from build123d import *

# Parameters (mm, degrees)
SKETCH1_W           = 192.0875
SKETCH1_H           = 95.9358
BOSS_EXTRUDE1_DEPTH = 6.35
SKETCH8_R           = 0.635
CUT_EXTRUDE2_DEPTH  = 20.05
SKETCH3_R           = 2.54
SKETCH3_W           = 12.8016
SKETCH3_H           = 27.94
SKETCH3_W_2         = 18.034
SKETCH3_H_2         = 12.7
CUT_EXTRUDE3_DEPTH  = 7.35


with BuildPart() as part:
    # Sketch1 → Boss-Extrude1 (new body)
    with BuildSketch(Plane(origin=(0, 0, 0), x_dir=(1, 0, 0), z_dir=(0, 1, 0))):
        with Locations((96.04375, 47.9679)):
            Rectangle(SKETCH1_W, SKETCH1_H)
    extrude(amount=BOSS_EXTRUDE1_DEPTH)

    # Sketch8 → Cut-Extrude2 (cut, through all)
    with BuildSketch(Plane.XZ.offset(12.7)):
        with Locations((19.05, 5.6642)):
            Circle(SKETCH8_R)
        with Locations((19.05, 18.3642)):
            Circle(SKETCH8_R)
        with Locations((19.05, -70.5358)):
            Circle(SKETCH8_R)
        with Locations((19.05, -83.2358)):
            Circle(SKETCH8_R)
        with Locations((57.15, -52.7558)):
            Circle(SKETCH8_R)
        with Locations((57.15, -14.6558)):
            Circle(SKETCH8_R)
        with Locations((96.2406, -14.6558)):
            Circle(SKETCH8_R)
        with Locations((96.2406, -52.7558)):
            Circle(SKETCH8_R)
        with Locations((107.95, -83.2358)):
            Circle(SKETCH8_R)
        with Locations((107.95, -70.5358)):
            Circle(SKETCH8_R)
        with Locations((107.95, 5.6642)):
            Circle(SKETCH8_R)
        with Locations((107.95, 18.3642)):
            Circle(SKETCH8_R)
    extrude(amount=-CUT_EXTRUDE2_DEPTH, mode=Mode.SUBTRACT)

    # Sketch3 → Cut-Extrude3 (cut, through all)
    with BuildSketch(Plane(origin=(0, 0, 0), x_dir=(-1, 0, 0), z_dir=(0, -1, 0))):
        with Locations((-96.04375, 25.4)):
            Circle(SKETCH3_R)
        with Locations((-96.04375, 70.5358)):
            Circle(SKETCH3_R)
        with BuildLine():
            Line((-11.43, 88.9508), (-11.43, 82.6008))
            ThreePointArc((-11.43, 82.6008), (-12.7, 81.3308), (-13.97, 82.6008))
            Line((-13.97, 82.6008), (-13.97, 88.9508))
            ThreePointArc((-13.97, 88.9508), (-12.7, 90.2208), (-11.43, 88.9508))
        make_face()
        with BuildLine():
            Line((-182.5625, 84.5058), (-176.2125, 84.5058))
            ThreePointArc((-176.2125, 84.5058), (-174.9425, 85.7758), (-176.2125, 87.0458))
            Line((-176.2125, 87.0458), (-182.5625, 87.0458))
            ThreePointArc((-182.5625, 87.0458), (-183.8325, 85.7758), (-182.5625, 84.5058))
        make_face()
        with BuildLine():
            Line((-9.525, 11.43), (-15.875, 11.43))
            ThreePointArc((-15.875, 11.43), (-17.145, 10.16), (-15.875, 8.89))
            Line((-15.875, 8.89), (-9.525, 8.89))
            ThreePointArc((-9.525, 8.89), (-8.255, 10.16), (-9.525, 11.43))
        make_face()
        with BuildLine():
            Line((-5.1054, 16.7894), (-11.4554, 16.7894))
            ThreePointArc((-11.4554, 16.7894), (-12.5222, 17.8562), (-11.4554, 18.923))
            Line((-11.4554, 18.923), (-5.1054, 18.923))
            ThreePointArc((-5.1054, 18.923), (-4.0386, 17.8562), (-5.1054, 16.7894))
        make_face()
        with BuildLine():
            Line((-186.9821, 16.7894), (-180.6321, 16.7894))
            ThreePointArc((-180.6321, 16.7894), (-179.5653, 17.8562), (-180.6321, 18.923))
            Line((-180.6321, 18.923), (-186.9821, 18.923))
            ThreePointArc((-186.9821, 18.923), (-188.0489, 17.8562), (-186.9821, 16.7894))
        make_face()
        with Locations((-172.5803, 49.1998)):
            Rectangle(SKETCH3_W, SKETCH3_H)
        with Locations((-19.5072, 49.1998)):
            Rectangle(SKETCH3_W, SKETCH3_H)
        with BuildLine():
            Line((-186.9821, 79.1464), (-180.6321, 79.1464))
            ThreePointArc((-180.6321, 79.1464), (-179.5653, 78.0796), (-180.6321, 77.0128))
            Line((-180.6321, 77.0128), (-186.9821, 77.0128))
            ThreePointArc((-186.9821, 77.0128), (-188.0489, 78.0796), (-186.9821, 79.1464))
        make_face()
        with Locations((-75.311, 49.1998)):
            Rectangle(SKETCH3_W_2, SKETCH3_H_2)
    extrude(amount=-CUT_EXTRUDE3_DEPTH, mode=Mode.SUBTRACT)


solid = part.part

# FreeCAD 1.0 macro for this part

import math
import FreeCAD as App
import Part
import Sketcher
from FreeCAD import Vector
Q = App.Units.Quantity

doc = App.newDocument("Part")
params = doc.addObject("Spreadsheet::Sheet", "Params")
for row, (alias, value) in enumerate([
    ("sketch1_width", "7.5625 in"),
    ("sketch1_height", "3.777 in"),
    ("pad1_length", "0.25 in"),
    ("sketch2_diameter", "0.05 in"),
    ("sketch3_diameter", "0.2 in"),
    ("sketch3_radius", "0.05 in"),
    ("sketch3_height", "1.1 in"),
    ("sketch3_height2", "0.5 in"),
    ("sketch3_radius2", "0.042 in"),
], start=1):
    params.set(f"A{row}", alias)
    params.set(f"B{row}", "=" + value)
    params.setAlias(f"B{row}", alias)

body = doc.addObject("PartDesign::Body", "Body")

# Sketch on XZ plane
sketch1 = doc.addObject("Sketcher::SketchObject", "Sketch")
body.addObject(sketch1)
sketch1.AttachmentSupport = (doc.XZ_Plane, [""])
sketch1.MapMode = "FlatFace"
sketch1.addGeometry([
    Part.LineSegment(Vector(0, -96, 0), Vector(0, 0, 0)),
    Part.LineSegment(Vector(0, 0, 0), Vector(192, 0, 0)),
    Part.LineSegment(Vector(192, 0, 0), Vector(192, -96, 0)),
    Part.LineSegment(Vector(192, -96, 0), Vector(0, -96, 0)),
], False)
sketch1.addConstraint([
    Sketcher.Constraint("Coincident", 0, 2, 1, 1),
    Sketcher.Constraint("Coincident", 1, 2, 2, 1),
    Sketcher.Constraint("Coincident", 2, 2, 3, 1),
    Sketcher.Constraint("Coincident", 3, 2, 0, 1),
    Sketcher.Constraint("Vertical", 0),
    Sketcher.Constraint("Horizontal", 1),
    Sketcher.Constraint("Vertical", 2),
    Sketcher.Constraint("Horizontal", 3),
    Sketcher.Constraint("Coincident", 0, 2, -1, 1),
    Sketcher.Constraint("DistanceX", 1, 1, 1, 2, Q("7.5625 in")),
    Sketcher.Constraint("DistanceY", 0, 1, 0, 2, Q("3.777 in")),
])
sketch1.setExpression("Constraints[9]", "Params.sketch1_width")
sketch1.setExpression("Constraints[10]", "Params.sketch1_height")
pad1 = doc.addObject("PartDesign::Pad", "Pad")
body.addObject(pad1)
pad1.Profile = sketch1
pad1.setExpression("Length", "Params.pad1_length")
pad1.Reversed = True

# Sketch on XZ plane
sketch2 = doc.addObject("Sketcher::SketchObject", "Sketch001")
body.addObject(sketch2)
sketch2.AttachmentSupport = (doc.XZ_Plane, [""])
sketch2.MapMode = "FlatFace"
sketch2.AttachmentOffset = App.Placement(Vector(0, 0, 0.5 * 25.4), App.Rotation())
sketch2.addGeometry([
    Part.Circle(Vector(19.1, 5.7, 0), Vector(0, 0, 1), 0.6),  # 0
    Part.Circle(Vector(19.1, 18.4, 0), Vector(0, 0, 1), 0.6),  # 1
    Part.Circle(Vector(19.1, -70.5, 0), Vector(0, 0, 1), 0.6),  # 2
    Part.Circle(Vector(19.1, -83.2, 0), Vector(0, 0, 1), 0.6),  # 3
    Part.Circle(Vector(57.1, -52.8, 0), Vector(0, 0, 1), 0.6),  # 4
    Part.Circle(Vector(57.1, -14.7, 0), Vector(0, 0, 1), 0.6),  # 5
    Part.Circle(Vector(96.2, -14.7, 0), Vector(0, 0, 1), 0.6),  # 6
    Part.Circle(Vector(96.2, -52.8, 0), Vector(0, 0, 1), 0.6),  # 7
    Part.Circle(Vector(108, -83.2, 0), Vector(0, 0, 1), 0.6),  # 8
    Part.Circle(Vector(108, -70.5, 0), Vector(0, 0, 1), 0.6),  # 9
    Part.Circle(Vector(108, 5.7, 0), Vector(0, 0, 1), 0.6),  # 10
    Part.Circle(Vector(108, 18.4, 0), Vector(0, 0, 1), 0.6),  # 11
], False)
sketch2.addConstraint([
    Sketcher.Constraint("Equal", 0, 1),
    Sketcher.Constraint("Equal", 1, 2),
    Sketcher.Constraint("Equal", 2, 3),
    Sketcher.Constraint("Equal", 3, 4),
    Sketcher.Constraint("Equal", 4, 5),
    Sketcher.Constraint("Equal", 5, 6),
    Sketcher.Constraint("Equal", 6, 7),
    Sketcher.Constraint("Equal", 7, 8),
    Sketcher.Constraint("Equal", 8, 9),
    Sketcher.Constraint("Equal", 9, 10),
    Sketcher.Constraint("Equal", 10, 11),
    Sketcher.Constraint("Horizontal", 5, 3, 6, 3),
    Sketcher.Constraint("Horizontal", 4, 3, 7, 3),
    Sketcher.Constraint("Horizontal", 3, 3, 8, 3),
    Sketcher.Constraint("Horizontal", 2, 3, 9, 3),
    Sketcher.Constraint("Horizontal", 0, 3, 10, 3),
    Sketcher.Constraint("Horizontal", 1, 3, 11, 3),
    Sketcher.Constraint("Vertical", 0, 3, 1, 3),
    Sketcher.Constraint("Vertical", 1, 3, 2, 3),
    Sketcher.Constraint("Vertical", 2, 3, 3, 3),
    Sketcher.Constraint("Vertical", 4, 3, 5, 3),
    Sketcher.Constraint("Vertical", 6, 3, 7, 3),
    Sketcher.Constraint("Vertical", 8, 3, 9, 3),
    Sketcher.Constraint("Vertical", 9, 3, 10, 3),
    Sketcher.Constraint("Vertical", 10, 3, 11, 3),
    Sketcher.Constraint("Diameter", 0, Q("0.05 in")),
    Sketcher.Constraint("DistanceY", 2, 3, 0, 3, Q("3 in")),
    Sketcher.Constraint("DistanceY", 3, 3, 1, 3, Q("4 in")),
    Sketcher.Constraint("DistanceX", 4, 3, 8, 3, Q("2 in")),
    Sketcher.Constraint("DistanceY", 0, 3, 1, 3, Q("0.5 in")),
    Sketcher.Constraint("DistanceX", 2, 3, 4, 3, Q("1.5 in")),
    Sketcher.Constraint("DistanceY", 2, 3, 4, 3, Q("0.7 in")),
    Sketcher.Constraint("DistanceY", 4, 3, 5, 3, Q("1.5 in")),
    Sketcher.Constraint("DistanceX", -1, 1, 0, 3, Q("0.75 in")),
    Sketcher.Constraint("DistanceY", -1, 1, 0, 3, Q("0.223 in")),
    Sketcher.Constraint("DistanceX", -1, 1, 6, 3, Q("3.789 in")),
])
sketch2.setExpression("Constraints[25]", "Params.sketch2_diameter")
pocket1 = doc.addObject("PartDesign::Pocket", "Pocket")
body.addObject(pocket1)
pocket1.Profile = sketch2
pocket1.Type = "ThroughAll"

# Sketch on XZ plane
sketch3 = doc.addObject("Sketcher::SketchObject", "Sketch002")
body.addObject(sketch3)
sketch3.AttachmentSupport = (doc.XZ_Plane, [""])
sketch3.MapMode = "FlatFace"
sketch3.addGeometry([
    Part.Circle(Vector(96, -25.4, 0), Vector(0, 0, 1), 2.5),  # 0
    Part.Circle(Vector(96, -70.5, 0), Vector(0, 0, 1), 2.5),  # 1
    Part.LineSegment(Vector(11.4, -82.6, 0), Vector(11.4, -89, 0)),  # 2
    Part.ArcOfCircle(Part.Circle(Vector(12.7, -89, 0), Vector(0, 0, 1), 1.3), math.radians(180), math.radians(360)),  # 3
    Part.LineSegment(Vector(14, -89, 0), Vector(14, -82.6, 0)),  # 4
    Part.ArcOfCircle(Part.Circle(Vector(12.7, -82.6, 0), Vector(0, 0, 1), 1.3), math.radians(0), math.radians(180)),  # 5
    Part.LineSegment(Vector(182.6, -84.5, 0), Vector(176.2, -84.5, 0)),  # 6
    Part.ArcOfCircle(Part.Circle(Vector(176.2, -85.8, 0), Vector(0, 0, 1), 1.3), math.radians(90), math.radians(270)),  # 7
    Part.LineSegment(Vector(176.2, -87, 0), Vector(182.6, -87, 0)),  # 8
    Part.ArcOfCircle(Part.Circle(Vector(182.6, -85.8, 0), Vector(0, 0, 1), 1.3), math.radians(-90), math.radians(90)),  # 9
    Part.LineSegment(Vector(9.5, -11.4, 0), Vector(15.9, -11.4, 0)),  # 10
    Part.ArcOfCircle(Part.Circle(Vector(15.9, -10.2, 0), Vector(0, 0, 1), 1.3), math.radians(-90), math.radians(90)),  # 11
    Part.LineSegment(Vector(15.9, -8.9, 0), Vector(9.5, -8.9, 0)),  # 12
    Part.ArcOfCircle(Part.Circle(Vector(9.5, -10.2, 0), Vector(0, 0, 1), 1.3), math.radians(90), math.radians(270)),  # 13
    Part.LineSegment(Vector(11.5, -16.8, 0), Vector(5.1, -16.8, 0)),  # 14
    Part.ArcOfCircle(Part.Circle(Vector(5.1, -17.9, 0), Vector(0, 0, 1), 1.1), math.radians(90), math.radians(270)),  # 15
    Part.LineSegment(Vector(5.1, -18.9, 0), Vector(11.5, -18.9, 0)),  # 16
    Part.ArcOfCircle(Part.Circle(Vector(11.5, -17.9, 0), Vector(0, 0, 1), 1.1), math.radians(-90), math.radians(90)),  # 17
    Part.LineSegment(Vector(187, -16.8, 0), Vector(180.6, -16.8, 0)),  # 18
    Part.ArcOfCircle(Part.Circle(Vector(180.6, -17.9, 0), Vector(0, 0, 1), 1.1), math.radians(90), math.radians(270)),  # 19
    Part.LineSegment(Vector(180.6, -18.9, 0), Vector(187, -18.9, 0)),  # 20
    Part.ArcOfCircle(Part.Circle(Vector(187, -17.9, 0), Vector(0, 0, 1), 1.1), math.radians(-90), math.radians(90)),  # 21
    Part.LineSegment(Vector(179, -63.2, 0), Vector(179, -35.2, 0)),  # 22
    Part.LineSegment(Vector(179, -35.2, 0), Vector(166.2, -35.2, 0)),  # 23
    Part.LineSegment(Vector(166.2, -35.2, 0), Vector(166.2, -63.2, 0)),  # 24
    Part.LineSegment(Vector(166.2, -63.2, 0), Vector(179, -63.2, 0)),  # 25
    Part.LineSegment(Vector(25.9, -63.2, 0), Vector(25.9, -35.2, 0)),  # 26
    Part.LineSegment(Vector(25.9, -35.2, 0), Vector(13.1, -35.2, 0)),  # 27
    Part.LineSegment(Vector(13.1, -35.2, 0), Vector(13.1, -63.2, 0)),  # 28
    Part.LineSegment(Vector(13.1, -63.2, 0), Vector(25.9, -63.2, 0)),  # 29
    Part.LineSegment(Vector(180.6, -79.1, 0), Vector(187, -79.1, 0)),  # 30
    Part.ArcOfCircle(Part.Circle(Vector(187, -78.1, 0), Vector(0, 0, 1), 1.1), math.radians(-90), math.radians(90)),  # 31
    Part.LineSegment(Vector(187, -77, 0), Vector(180.6, -77, 0)),  # 32
    Part.ArcOfCircle(Part.Circle(Vector(180.6, -78.1, 0), Vector(0, 0, 1), 1.1), math.radians(90), math.radians(270)),  # 33
    Part.LineSegment(Vector(84.3, -55.5, 0), Vector(84.3, -42.8, 0)),  # 34
    Part.LineSegment(Vector(84.3, -42.8, 0), Vector(66.3, -42.8, 0)),  # 35
    Part.LineSegment(Vector(66.3, -42.8, 0), Vector(66.3, -55.5, 0)),  # 36
    Part.LineSegment(Vector(66.3, -55.5, 0), Vector(84.3, -55.5, 0)),  # 37
], False)
sketch3.addConstraint([
    Sketcher.Constraint("Tangent", 2, 2, 3, 1),
    Sketcher.Constraint("Tangent", 3, 2, 4, 1),
    Sketcher.Constraint("Tangent", 4, 2, 5, 1),
    Sketcher.Constraint("Tangent", 5, 2, 2, 1),
    Sketcher.Constraint("Tangent", 6, 2, 7, 1),
    Sketcher.Constraint("Tangent", 7, 2, 8, 1),
    Sketcher.Constraint("Tangent", 8, 2, 9, 1),
    Sketcher.Constraint("Tangent", 9, 2, 6, 1),
    Sketcher.Constraint("Tangent", 10, 2, 11, 1),
    Sketcher.Constraint("Tangent", 11, 2, 12, 1),
    Sketcher.Constraint("Tangent", 12, 2, 13, 1),
    Sketcher.Constraint("Tangent", 13, 2, 10, 1),
    Sketcher.Constraint("Tangent", 14, 2, 15, 1),
    Sketcher.Constraint("Tangent", 15, 2, 16, 1),
    Sketcher.Constraint("Tangent", 16, 2, 17, 1),
    Sketcher.Constraint("Tangent", 17, 2, 14, 1),
    Sketcher.Constraint("Tangent", 18, 2, 19, 1),
    Sketcher.Constraint("Tangent", 19, 2, 20, 1),
    Sketcher.Constraint("Tangent", 20, 2, 21, 1),
    Sketcher.Constraint("Tangent", 21, 2, 18, 1),
    Sketcher.Constraint("Coincident", 22, 2, 23, 1),
    Sketcher.Constraint("Coincident", 23, 2, 24, 1),
    Sketcher.Constraint("Coincident", 24, 2, 25, 1),
    Sketcher.Constraint("Coincident", 25, 2, 22, 1),
    Sketcher.Constraint("Coincident", 26, 2, 27, 1),
    Sketcher.Constraint("Coincident", 27, 2, 28, 1),
    Sketcher.Constraint("Coincident", 28, 2, 29, 1),
    Sketcher.Constraint("Coincident", 29, 2, 26, 1),
    Sketcher.Constraint("Tangent", 30, 2, 31, 1),
    Sketcher.Constraint("Tangent", 31, 2, 32, 1),
    Sketcher.Constraint("Tangent", 32, 2, 33, 1),
    Sketcher.Constraint("Tangent", 33, 2, 30, 1),
    Sketcher.Constraint("Coincident", 34, 2, 35, 1),
    Sketcher.Constraint("Coincident", 35, 2, 36, 1),
    Sketcher.Constraint("Coincident", 36, 2, 37, 1),
    Sketcher.Constraint("Coincident", 37, 2, 34, 1),
    Sketcher.Constraint("Vertical", 2),
    Sketcher.Constraint("Vertical", 4),
    Sketcher.Constraint("Horizontal", 6),
    Sketcher.Constraint("Horizontal", 8),
    Sketcher.Constraint("Horizontal", 10),
    Sketcher.Constraint("Horizontal", 12),
    Sketcher.Constraint("Horizontal", 14),
    Sketcher.Constraint("Horizontal", 16),
    Sketcher.Constraint("Horizontal", 18),
    Sketcher.Constraint("Horizontal", 20),
    Sketcher.Constraint("Vertical", 22),
    Sketcher.Constraint("Horizontal", 23),
    Sketcher.Constraint("Vertical", 24),
    Sketcher.Constraint("Horizontal", 25),
    Sketcher.Constraint("Vertical", 26),
    Sketcher.Constraint("Horizontal", 27),
    Sketcher.Constraint("Vertical", 28),
    Sketcher.Constraint("Horizontal", 29),
    Sketcher.Constraint("Horizontal", 30),
    Sketcher.Constraint("Horizontal", 32),
    Sketcher.Constraint("Vertical", 34),
    Sketcher.Constraint("Horizontal", 35),
    Sketcher.Constraint("Vertical", 36),
    Sketcher.Constraint("Horizontal", 37),
    Sketcher.Constraint("Equal", 0, 1),
    Sketcher.Constraint("Equal", 5, 7),
    Sketcher.Constraint("Equal", 9, 11),
    Sketcher.Constraint("Equal", 17, 19),
    Sketcher.Constraint("Equal", 21, 31),
    Sketcher.Constraint("Horizontal", 17, 3, 19, 3),
    Sketcher.Constraint("Horizontal", 23, 2, 26, 2),
    Sketcher.Constraint("Horizontal", 25, 2, 28, 2),
    Sketcher.Constraint("Vertical", 0, 3, 1, 3),
    Sketcher.Constraint("Vertical", 21, 3, 31, 3),
    Sketcher.Constraint("Vertical", 19, 3, 33, 3),
    Sketcher.Constraint("Equal", 8, 10),
    Sketcher.Constraint("Equal", 12, 14),
    Sketcher.Constraint("Equal", 16, 18),
    Sketcher.Constraint("Equal", 25, 27),
    Sketcher.Constraint("Equal", 32, 2),
    Sketcher.Constraint("Diameter", 0, Q("0.2 in")),
    Sketcher.Constraint("Radius", 3, Q("0.05 in")),
    Sketcher.Constraint("DistanceY", 22, 1, 22, 2, Q("1.1 in")),
    Sketcher.Constraint("DistanceY", 34, 1, 34, 2, Q("0.5 in")),
    Sketcher.Constraint("DistanceY", 0, 3, -1, 1, Q("1 in")),
    Sketcher.Constraint("Radius", 15, Q("0.042 in")),
    Sketcher.Constraint("DistanceX", 6, 2, 6, 1, Q("0.25 in")),
    Sketcher.Constraint("DistanceX", 35, 2, 35, 1, Q("0.71 in")),
    Sketcher.Constraint("DistanceX", -1, 1, 3, 3, Q("0.5 in")),
    Sketcher.Constraint("DistanceY", 11, 3, -1, 1, Q("0.4 in")),
    Sketcher.Constraint("DistanceY", 7, 3, 1, 3, Q("0.6 in")),
    Sketcher.Constraint("DistanceX", 26, 2, 34, 2, Q("2.3 in")),
    Sketcher.Constraint("DistanceY", 34, 2, 26, 2, Q("0.3 in")),
    Sketcher.Constraint("DistanceX", 23, 2, 23, 1, Q("0.504 in")),
    Sketcher.Constraint("DistanceX", -1, 1, 26, 2, Q("1.02 in")),
    Sketcher.Constraint("DistanceY", 6, 2, 24, 2, Q("0.84 in")),
    Sketcher.Constraint("DistanceX", -1, 1, 0, 3, Q("3.78125 in")),
    Sketcher.Constraint("DistanceY", 1, 3, -1, 1, Q("2.777 in")),
    Sketcher.Constraint("DistanceY", 3, 3, -1, 1, Q("3.502 in")),
    Sketcher.Constraint("DistanceX", -1, 1, 7, 3, Q("6.9375 in")),
    Sketcher.Constraint("DistanceX", -1, 1, 11, 3, Q("0.625 in")),
    Sketcher.Constraint("DistanceX", -1, 1, 15, 3, Q("0.201 in")),
    Sketcher.Constraint("DistanceY", 15, 3, -1, 1, Q("0.703 in")),
    Sketcher.Constraint("DistanceY", 31, 3, -1, 1, Q("3.074 in")),
    Sketcher.Constraint("DistanceX", 19, 3, 9, 3, Q("0.076 in")),
    Sketcher.Constraint("DistanceX", 22, 2, 19, 2, Q("0.065 in")),
])
sketch3.setExpression("Constraints[76]", "Params.sketch3_diameter")
sketch3.setExpression("Constraints[77]", "Params.sketch3_radius")
sketch3.setExpression("Constraints[78]", "Params.sketch3_height")
sketch3.setExpression("Constraints[79]", "Params.sketch3_height2")
sketch3.setExpression("Constraints[81]", "Params.sketch3_radius2")
pocket2 = doc.addObject("PartDesign::Pocket", "Pocket001")
body.addObject(pocket2)
pocket2.Profile = sketch3
pocket2.Type = "ThroughAll"

doc.recompute()
